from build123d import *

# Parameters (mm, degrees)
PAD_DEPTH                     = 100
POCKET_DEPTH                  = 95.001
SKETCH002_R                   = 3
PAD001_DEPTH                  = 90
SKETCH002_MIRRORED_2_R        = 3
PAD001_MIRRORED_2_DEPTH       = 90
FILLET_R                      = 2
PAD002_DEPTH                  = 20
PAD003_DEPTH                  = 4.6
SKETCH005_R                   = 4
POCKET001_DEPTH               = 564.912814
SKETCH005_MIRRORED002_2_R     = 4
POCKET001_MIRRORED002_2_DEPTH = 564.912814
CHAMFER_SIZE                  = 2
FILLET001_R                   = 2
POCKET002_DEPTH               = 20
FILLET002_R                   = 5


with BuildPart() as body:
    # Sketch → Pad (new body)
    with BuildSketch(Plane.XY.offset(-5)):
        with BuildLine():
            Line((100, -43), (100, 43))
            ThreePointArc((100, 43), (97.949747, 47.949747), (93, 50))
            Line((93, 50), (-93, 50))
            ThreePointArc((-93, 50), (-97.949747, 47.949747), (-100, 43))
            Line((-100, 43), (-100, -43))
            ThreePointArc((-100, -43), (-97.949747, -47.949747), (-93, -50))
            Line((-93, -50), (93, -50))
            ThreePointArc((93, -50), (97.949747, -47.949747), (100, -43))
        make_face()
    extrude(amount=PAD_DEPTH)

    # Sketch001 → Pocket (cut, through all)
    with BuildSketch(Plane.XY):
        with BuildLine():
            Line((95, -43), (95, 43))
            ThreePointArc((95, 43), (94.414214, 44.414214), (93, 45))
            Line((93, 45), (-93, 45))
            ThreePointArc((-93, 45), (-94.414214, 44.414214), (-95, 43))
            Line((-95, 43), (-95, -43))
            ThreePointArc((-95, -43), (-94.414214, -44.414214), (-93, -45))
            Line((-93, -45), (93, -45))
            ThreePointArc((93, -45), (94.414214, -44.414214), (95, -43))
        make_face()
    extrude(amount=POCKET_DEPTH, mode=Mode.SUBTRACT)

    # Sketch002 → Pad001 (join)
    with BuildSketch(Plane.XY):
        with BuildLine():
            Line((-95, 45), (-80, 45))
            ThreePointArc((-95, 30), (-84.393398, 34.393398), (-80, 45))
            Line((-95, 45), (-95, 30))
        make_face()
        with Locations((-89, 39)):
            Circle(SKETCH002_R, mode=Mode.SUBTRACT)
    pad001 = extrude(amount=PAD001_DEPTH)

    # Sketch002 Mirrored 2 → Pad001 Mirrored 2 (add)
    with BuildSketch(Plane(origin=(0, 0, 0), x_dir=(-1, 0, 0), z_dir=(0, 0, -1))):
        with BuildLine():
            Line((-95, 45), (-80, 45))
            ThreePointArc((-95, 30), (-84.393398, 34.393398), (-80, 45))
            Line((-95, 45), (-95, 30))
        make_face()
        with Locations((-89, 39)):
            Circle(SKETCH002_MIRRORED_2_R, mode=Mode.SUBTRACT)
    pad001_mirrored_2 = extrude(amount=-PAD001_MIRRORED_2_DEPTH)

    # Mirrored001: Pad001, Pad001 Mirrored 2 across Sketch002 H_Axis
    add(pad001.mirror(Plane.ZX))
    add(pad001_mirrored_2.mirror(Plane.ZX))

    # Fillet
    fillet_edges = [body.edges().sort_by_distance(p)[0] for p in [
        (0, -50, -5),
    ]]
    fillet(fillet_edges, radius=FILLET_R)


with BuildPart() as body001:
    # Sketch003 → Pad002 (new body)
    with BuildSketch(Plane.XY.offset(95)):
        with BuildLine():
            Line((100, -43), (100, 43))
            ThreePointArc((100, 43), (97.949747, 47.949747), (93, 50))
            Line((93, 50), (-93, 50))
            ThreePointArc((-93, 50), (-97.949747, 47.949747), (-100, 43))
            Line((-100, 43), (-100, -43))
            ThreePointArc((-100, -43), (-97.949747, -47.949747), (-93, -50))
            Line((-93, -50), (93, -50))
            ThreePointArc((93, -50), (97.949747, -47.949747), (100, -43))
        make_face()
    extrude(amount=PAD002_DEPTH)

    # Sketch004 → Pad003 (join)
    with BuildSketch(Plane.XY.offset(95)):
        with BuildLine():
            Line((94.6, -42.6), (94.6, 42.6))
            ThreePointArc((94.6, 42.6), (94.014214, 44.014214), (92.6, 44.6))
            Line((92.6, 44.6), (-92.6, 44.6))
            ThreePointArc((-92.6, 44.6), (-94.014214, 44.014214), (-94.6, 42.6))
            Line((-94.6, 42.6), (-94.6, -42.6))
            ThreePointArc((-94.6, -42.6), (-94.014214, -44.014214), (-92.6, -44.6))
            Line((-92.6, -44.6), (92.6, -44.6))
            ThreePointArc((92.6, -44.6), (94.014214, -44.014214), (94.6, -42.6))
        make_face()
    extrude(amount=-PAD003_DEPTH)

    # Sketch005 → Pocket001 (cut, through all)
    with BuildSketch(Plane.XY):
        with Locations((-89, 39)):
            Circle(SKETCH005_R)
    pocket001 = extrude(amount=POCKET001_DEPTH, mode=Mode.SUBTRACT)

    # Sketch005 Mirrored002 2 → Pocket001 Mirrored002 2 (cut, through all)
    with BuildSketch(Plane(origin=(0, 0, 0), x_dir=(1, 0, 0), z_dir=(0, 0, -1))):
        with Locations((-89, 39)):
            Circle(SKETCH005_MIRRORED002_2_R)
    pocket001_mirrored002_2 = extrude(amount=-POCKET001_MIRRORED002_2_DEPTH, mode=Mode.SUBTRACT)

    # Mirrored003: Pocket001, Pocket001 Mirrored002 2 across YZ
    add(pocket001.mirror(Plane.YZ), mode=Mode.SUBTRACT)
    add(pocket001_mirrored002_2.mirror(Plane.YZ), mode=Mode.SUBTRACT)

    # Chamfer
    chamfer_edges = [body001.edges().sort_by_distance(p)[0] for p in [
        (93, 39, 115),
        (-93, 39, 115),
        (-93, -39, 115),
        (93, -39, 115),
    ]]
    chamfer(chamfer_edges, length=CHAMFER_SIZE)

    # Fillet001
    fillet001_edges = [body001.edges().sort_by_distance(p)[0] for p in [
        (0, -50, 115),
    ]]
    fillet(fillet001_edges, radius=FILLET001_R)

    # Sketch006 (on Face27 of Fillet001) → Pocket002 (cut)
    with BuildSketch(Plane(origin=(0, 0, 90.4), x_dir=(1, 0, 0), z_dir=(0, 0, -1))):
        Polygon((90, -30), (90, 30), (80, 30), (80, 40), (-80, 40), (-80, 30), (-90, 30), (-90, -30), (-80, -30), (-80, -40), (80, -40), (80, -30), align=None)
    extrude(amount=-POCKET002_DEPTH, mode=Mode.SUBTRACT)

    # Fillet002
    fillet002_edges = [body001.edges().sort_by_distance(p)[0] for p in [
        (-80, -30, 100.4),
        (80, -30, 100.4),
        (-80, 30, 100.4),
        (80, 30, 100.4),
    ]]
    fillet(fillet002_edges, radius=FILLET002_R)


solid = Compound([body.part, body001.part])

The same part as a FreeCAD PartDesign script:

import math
import FreeCAD as App
import Part
import Sketcher
Q = App.Units.Quantity


def edges_at(feature, points):
    """Names of the edges that pass closest to the given points."""
    edges = feature.Shape.Edges
    near = lambda p: min(range(len(edges)), key=lambda i: edges[i].distToShape(Part.Vertex(*p))[0])
    return sorted({f"Edge{near(p) + 1}" for p in points})

doc = App.newDocument("Part")
body = doc.addObject("PartDesign::Body", "Body")

# Sketch on XY plane
sketch1 = body.newObject("Sketcher::SketchObject", "Sketch")
sketch1.AttachmentSupport = (doc.getObject("XY_Plane"), [""])
sketch1.MapMode = "FlatFace"
sketch1.AttachmentOffset = App.Placement(App.Vector(0, 0, -5), App.Rotation())
sketch1.addGeometry(Part.LineSegment(App.Vector(100, -43, 0), App.Vector(100, 43, 0)), False)
sketch1.addGeometry(Part.ArcOfCircle(Part.Circle(App.Vector(93, 43, 0), App.Vector(0, 0, 1), 7), math.radians(0), math.radians(90)), False)
sketch1.addGeometry(Part.LineSegment(App.Vector(93, 50, 0), App.Vector(-93, 50, 0)), False)
sketch1.addGeometry(Part.ArcOfCircle(Part.Circle(App.Vector(-93, 43, 0), App.Vector(0, 0, 1), 7), math.radians(90), math.radians(180)), False)
sketch1.addGeometry(Part.LineSegment(App.Vector(-100, 43, 0), App.Vector(-100, -43, 0)), False)
sketch1.addGeometry(Part.ArcOfCircle(Part.Circle(App.Vector(-93, -43, 0), App.Vector(0, 0, 1), 7), math.radians(-180), math.radians(-90)), False)
sketch1.addGeometry(Part.LineSegment(App.Vector(-93, -50, 0), App.Vector(93, -50, 0)), False)
sketch1.addGeometry(Part.ArcOfCircle(Part.Circle(App.Vector(93, -43, 0), App.Vector(0, 0, 1), 7), math.radians(-90), math.radians(0)), False)
sketch1.addConstraint(Sketcher.Constraint("Tangent", 0, 2, 1, 1))
sketch1.addConstraint(Sketcher.Constraint("Tangent", 1, 2, 2, 1))
sketch1.addConstraint(Sketcher.Constraint("Tangent", 2, 2, 3, 1))
sketch1.addConstraint(Sketcher.Constraint("Tangent", 3, 2, 4, 1))
sketch1.addConstraint(Sketcher.Constraint("Tangent", 4, 2, 5, 1))
sketch1.addConstraint(Sketcher.Constraint("Tangent", 5, 2, 6, 1))
sketch1.addConstraint(Sketcher.Constraint("Tangent", 6, 2, 7, 1))
sketch1.addConstraint(Sketcher.Constraint("Tangent", 7, 2, 0, 1))
sketch1.addConstraint(Sketcher.Constraint("Vertical", 0))
sketch1.addConstraint(Sketcher.Constraint("Horizontal", 2))
sketch1.addConstraint(Sketcher.Constraint("Vertical", 4))
sketch1.addConstraint(Sketcher.Constraint("Horizontal", 6))
sketch1.addConstraint(Sketcher.Constraint("Equal", 1, 3))
sketch1.addConstraint(Sketcher.Constraint("Equal", 3, 5))
sketch1.addConstraint(Sketcher.Constraint("Equal", 5, 7))
sketch1.addConstraint(Sketcher.Constraint("Symmetric", 1, 3, 5, 3, -1, 1))
sketch1.addConstraint(Sketcher.Constraint("Radius", 1, Q("7.000002 mm")))
sketch1.addConstraint(Sketcher.Constraint("DistanceX", 2, 2, 2, 1, Q("186 mm")))
sketch1.addConstraint(Sketcher.Constraint("DistanceY", 0, 1, 0, 2, Q("86 mm")))
pad1 = body.newObject("PartDesign::Pad", "Pad")
pad1.Profile = sketch1
pad1.Length = 100

# Sketch on XY plane
sketch2 = body.newObject("Sketcher::SketchObject", "Sketch001")
sketch2.AttachmentSupport = (doc.getObject("XY_Plane"), [""])
sketch2.MapMode = "FlatFace"
sketch2.addGeometry(Part.LineSegment(App.Vector(95, -43, 0), App.Vector(95, 43, 0)), False)
sketch2.addGeometry(Part.ArcOfCircle(Part.Circle(App.Vector(93, 43, 0), App.Vector(0, 0, 1), 2), math.radians(0), math.radians(90)), False)
sketch2.addGeometry(Part.LineSegment(App.Vector(93, 45, 0), App.Vector(-93, 45, 0)), False)
sketch2.addGeometry(Part.ArcOfCircle(Part.Circle(App.Vector(-93, 43, 0), App.Vector(0, 0, 1), 2), math.radians(90), math.radians(180)), False)
sketch2.addGeometry(Part.LineSegment(App.Vector(-95, 43, 0), App.Vector(-95, -43, 0)), False)
sketch2.addGeometry(Part.ArcOfCircle(Part.Circle(App.Vector(-93, -43, 0), App.Vector(0, 0, 1), 2), math.radians(180), math.radians(270)), False)
sketch2.addGeometry(Part.LineSegment(App.Vector(-93, -45, 0), App.Vector(93, -45, 0)), False)
sketch2.addGeometry(Part.ArcOfCircle(Part.Circle(App.Vector(93, -43, 0), App.Vector(0, 0, 1), 2), math.radians(-90), math.radians(0)), False)
sketch2.addConstraint(Sketcher.Constraint("Tangent", 0, 2, 1, 1))
sketch2.addConstraint(Sketcher.Constraint("Tangent", 1, 2, 2, 1))
sketch2.addConstraint(Sketcher.Constraint("Tangent", 2, 2, 3, 1))
sketch2.addConstraint(Sketcher.Constraint("Tangent", 3, 2, 4, 1))
sketch2.addConstraint(Sketcher.Constraint("Tangent", 4, 2, 5, 1))
sketch2.addConstraint(Sketcher.Constraint("Tangent", 5, 2, 6, 1))
sketch2.addConstraint(Sketcher.Constraint("Tangent", 6, 2, 7, 1))
sketch2.addConstraint(Sketcher.Constraint("Tangent", 7, 2, 0, 1))
sketch2.addConstraint(Sketcher.Constraint("Vertical", 0))
sketch2.addConstraint(Sketcher.Constraint("Horizontal", 2))
sketch2.addConstraint(Sketcher.Constraint("Vertical", 4))
sketch2.addConstraint(Sketcher.Constraint("Horizontal", 6))
sketch2.addConstraint(Sketcher.Constraint("Equal", 1, 3))
sketch2.addConstraint(Sketcher.Constraint("Equal", 3, 5))
sketch2.addConstraint(Sketcher.Constraint("Equal", 5, 7))
sketch2.addConstraint(Sketcher.Constraint("Symmetric", 1, 3, 5, 3, -1, 1))
sketch2.addConstraint(Sketcher.Constraint("Radius", 1, Q("1.999999 mm")))
sketch2.addConstraint(Sketcher.Constraint("DistanceX", 2, 2, 2, 1, Q("186 mm")))
sketch2.addConstraint(Sketcher.Constraint("DistanceY", 0, 1, 0, 2, Q("86 mm")))
pocket1 = body.newObject("PartDesign::Pocket", "Pocket")
pocket1.Profile = sketch2
pocket1.Type = "ThroughAll"
pocket1.Reversed = True

# Sketch on XY plane
sketch3 = body.newObject("Sketcher::SketchObject", "Sketch002")
sketch3.AttachmentSupport = (doc.getObject("XY_Plane"), [""])
sketch3.MapMode = "FlatFace"
sketch3.addGeometry(Part.LineSegment(App.Vector(-80, 45, 0), App.Vector(-95, 45, 0)), False)
sketch3.addGeometry(Part.LineSegment(App.Vector(-95, 45, 0), App.Vector(-95, 30, 0)), False)
sketch3.addGeometry(Part.ArcOfCircle(Part.Circle(App.Vector(-95, 45, 0), App.Vector(0, 0, 1), 15), math.radians(-90), math.radians(0)), False)
sketch3.addGeometry(Part.Circle(App.Vector(-89, 39, 0), App.Vector(0, 0, 1), 3), False)
sketch3.addConstraint(Sketcher.Constraint("Coincident", 0, 2, 1, 1))
sketch3.addConstraint(Sketcher.Constraint("Coincident", 1, 2, 2, 1))
sketch3.addConstraint(Sketcher.Constraint("Coincident", 2, 2, 0, 1))
sketch3.addConstraint(Sketcher.Constraint("Horizontal", 0))
sketch3.addConstraint(Sketcher.Constraint("Vertical", 1))
sketch3.addConstraint(Sketcher.Constraint("Coincident", 0, 2, 2, 3))
sketch3.addConstraint(Sketcher.Constraint("Diameter", 3, Q("6 mm")))
sketch3.addConstraint(Sketcher.Constraint("Radius", 2, Q("14.999999 mm")))
sketch3.addConstraint(Sketcher.Constraint("DistanceX", 2, 3, -1, 1, Q("94.999999 mm")))
sketch3.addConstraint(Sketcher.Constraint("DistanceY", -1, 1, 2, 3, Q("44.999999 mm")))
sketch3.addConstraint(Sketcher.Constraint("DistanceX", 3, 3, -1, 1, Q("89 mm")))
sketch3.addConstraint(Sketcher.Constraint("DistanceY", -1, 1, 3, 3, Q("39 mm")))
pad2 = body.newObject("PartDesign::Pad", "Pad001")
pad2.Profile = sketch3
pad2.Length = 90

# Sketch on XY plane
sketch4 = body.newObject("Sketcher::SketchObject", "Sketch003")
sketch4.AttachmentSupport = (doc.getObject("XY_Plane"), [""])
sketch4.MapMode = "FlatFace"
sketch4.addGeometry(Part.LineSegment(App.Vector(80, 45, 0), App.Vector(95, 45, 0)), False)
sketch4.addGeometry(Part.LineSegment(App.Vector(95, 45, 0), App.Vector(95, 30, 0)), False)
sketch4.addGeometry(Part.ArcOfCircle(Part.Circle(App.Vector(95, 45, 0), App.Vector(0, 0, 1), 15), math.radians(180), math.radians(270)), False)
sketch4.addGeometry(Part.Circle(App.Vector(89, 39, 0), App.Vector(0, 0, 1), 3), False)
sketch4.addConstraint(Sketcher.Constraint("Coincident", 0, 2, 1, 1))
sketch4.addConstraint(Sketcher.Constraint("Coincident", 1, 2, 2, 2))
sketch4.addConstraint(Sketcher.Constraint("Coincident", 2, 1, 0, 1))
sketch4.addConstraint(Sketcher.Constraint("Horizontal", 0))
sketch4.addConstraint(Sketcher.Constraint("Vertical", 1))
sketch4.addConstraint(Sketcher.Constraint("Coincident", 0, 2, 2, 3))
sketch4.addConstraint(Sketcher.Constraint("Diameter", 3, Q("6 mm")))
sketch4.addConstraint(Sketcher.Constraint("Radius", 2, Q("14.999999 mm")))
sketch4.addConstraint(Sketcher.Constraint("DistanceX", -1, 1, 2, 3, Q("94.999999 mm")))
sketch4.addConstraint(Sketcher.Constraint("DistanceY", -1, 1, 2, 3, Q("44.999999 mm")))
sketch4.addConstraint(Sketcher.Constraint("DistanceX", -1, 1, 3, 3, Q("89 mm")))
sketch4.addConstraint(Sketcher.Constraint("DistanceY", -1, 1, 3, 3, Q("39 mm")))
pad3 = body.newObject("PartDesign::Pad", "Pad002")
pad3.Profile = sketch4
pad3.Length = 90
doc.recompute()

mirrored = body.newObject("PartDesign::Mirrored", "Mirrored")
mirrored.Originals = [pad2, pad3]
mirrored.MirrorPlane = (doc.getObject("XZ_Plane"), [""])
body.Tip = mirrored
doc.recompute()

fillet = body.newObject("PartDesign::Fillet", "Fillet")
fillet.Base = (mirrored, edges_at(mirrored, [(0, -50, -5)]))
fillet.Radius = 2
body2 = doc.addObject("PartDesign::Body", "Body001")

# Sketch on XY plane
sketch5 = body2.newObject("Sketcher::SketchObject", "Sketch004")
sketch5.AttachmentSupport = (doc.getObject("XY_Plane001"), [""])
sketch5.MapMode = "FlatFace"
sketch5.AttachmentOffset = App.Placement(App.Vector(0, 0, 95), App.Rotation())
sketch5.addGeometry(Part.LineSegment(App.Vector(100, -43, 0), App.Vector(100, 43, 0)), False)
sketch5.addGeometry(Part.ArcOfCircle(Part.Circle(App.Vector(93, 43, 0), App.Vector(0, 0, 1), 7), math.radians(0), math.radians(90)), False)
sketch5.addGeometry(Part.LineSegment(App.Vector(93, 50, 0), App.Vector(-93, 50, 0)), False)
sketch5.addGeometry(Part.ArcOfCircle(Part.Circle(App.Vector(-93, 43, 0), App.Vector(0, 0, 1), 7), math.radians(90), math.radians(180)), False)
sketch5.addGeometry(Part.LineSegment(App.Vector(-100, 43, 0), App.Vector(-100, -43, 0)), False)
sketch5.addGeometry(Part.ArcOfCircle(Part.Circle(App.Vector(-93, -43, 0), App.Vector(0, 0, 1), 7), math.radians(-180), math.radians(-90)), False)
sketch5.addGeometry(Part.LineSegment(App.Vector(-93, -50, 0), App.Vector(93, -50, 0)), False)
sketch5.addGeometry(Part.ArcOfCircle(Part.Circle(App.Vector(93, -43, 0), App.Vector(0, 0, 1), 7), math.radians(-90), math.radians(0)), False)
sketch5.addConstraint(Sketcher.Constraint("Tangent", 0, 2, 1, 1))
sketch5.addConstraint(Sketcher.Constraint("Tangent", 1, 2, 2, 1))
sketch5.addConstraint(Sketcher.Constraint("Tangent", 2, 2, 3, 1))
sketch5.addConstraint(Sketcher.Constraint("Tangent", 3, 2, 4, 1))
sketch5.addConstraint(Sketcher.Constraint("Tangent", 4, 2, 5, 1))
sketch5.addConstraint(Sketcher.Constraint("Tangent", 5, 2, 6, 1))
sketch5.addConstraint(Sketcher.Constraint("Tangent", 6, 2, 7, 1))
sketch5.addConstraint(Sketcher.Constraint("Tangent", 7, 2, 0, 1))
sketch5.addConstraint(Sketcher.Constraint("Vertical", 0))
sketch5.addConstraint(Sketcher.Constraint("Horizontal", 2))
sketch5.addConstraint(Sketcher.Constraint("Vertical", 4))
sketch5.addConstraint(Sketcher.Constraint("Horizontal", 6))
sketch5.addConstraint(Sketcher.Constraint("Equal", 1, 3))
sketch5.addConstraint(Sketcher.Constraint("Equal", 3, 5))
sketch5.addConstraint(Sketcher.Constraint("Equal", 5, 7))
sketch5.addConstraint(Sketcher.Constraint("Symmetric", 1, 3, 5, 3, -1, 1))
sketch5.addConstraint(Sketcher.Constraint("Radius", 1, Q("7.000002 mm")))
sketch5.addConstraint(Sketcher.Constraint("DistanceX", 2, 2, 2, 1, Q("186 mm")))
sketch5.addConstraint(Sketcher.Constraint("DistanceY", 0, 1, 0, 2, Q("86 mm")))
pad4 = body2.newObject("PartDesign::Pad", "Pad003")
pad4.Profile = sketch5
pad4.Length = 20

# Sketch on XY plane
sketch6 = body2.newObject("Sketcher::SketchObject", "Sketch005")
sketch6.AttachmentSupport = (doc.getObject("XY_Plane001"), [""])
sketch6.MapMode = "FlatFace"
sketch6.AttachmentOffset = App.Placement(App.Vector(0, 0, 95), App.Rotation())
sketch6.addGeometry(Part.LineSegment(App.Vector(94.6, -42.6, 0), App.Vector(94.6, 42.6, 0)), False)
sketch6.addGeometry(Part.ArcOfCircle(Part.Circle(App.Vector(92.6, 42.6, 0), App.Vector(0, 0, 1), 2), math.radians(0), math.radians(90)), False)
sketch6.addGeometry(Part.LineSegment(App.Vector(92.6, 44.6, 0), App.Vector(-92.6, 44.6, 0)), False)
sketch6.addGeometry(Part.ArcOfCircle(Part.Circle(App.Vector(-92.6, 42.6, 0), App.Vector(0, 0, 1), 2), math.radians(90), math.radians(180)), False)
sketch6.addGeometry(Part.LineSegment(App.Vector(-94.6, 42.6, 0), App.Vector(-94.6, -42.6, 0)), False)
sketch6.addGeometry(Part.ArcOfCircle(Part.Circle(App.Vector(-92.6, -42.6, 0), App.Vector(0, 0, 1), 2), math.radians(180), math.radians(270)), False)
sketch6.addGeometry(Part.LineSegment(App.Vector(-92.6, -44.6, 0), App.Vector(92.6, -44.6, 0)), False)
sketch6.addGeometry(Part.ArcOfCircle(Part.Circle(App.Vector(92.6, -42.6, 0), App.Vector(0, 0, 1), 2), math.radians(-90), math.radians(0)), False)
sketch6.addConstraint(Sketcher.Constraint("Tangent", 0, 2, 1, 1))
sketch6.addConstraint(Sketcher.Constraint("Tangent", 1, 2, 2, 1))
sketch6.addConstraint(Sketcher.Constraint("Tangent", 2, 2, 3, 1))
sketch6.addConstraint(Sketcher.Constraint("Tangent", 3, 2, 4, 1))
sketch6.addConstraint(Sketcher.Constraint("Tangent", 4, 2, 5, 1))
sketch6.addConstraint(Sketcher.Constraint("Tangent", 5, 2, 6, 1))
sketch6.addConstraint(Sketcher.Constraint("Tangent", 6, 2, 7, 1))
sketch6.addConstraint(Sketcher.Constraint("Tangent", 7, 2, 0, 1))
sketch6.addConstraint(Sketcher.Constraint("Vertical", 0))
sketch6.addConstraint(Sketcher.Constraint("Horizontal", 2))
sketch6.addConstraint(Sketcher.Constraint("Vertical", 4))
sketch6.addConstraint(Sketcher.Constraint("Horizontal", 6))
sketch6.addConstraint(Sketcher.Constraint("Equal", 1, 3))
sketch6.addConstraint(Sketcher.Constraint("Equal", 3, 5))
sketch6.addConstraint(Sketcher.Constraint("Equal", 5, 7))
sketch6.addConstraint(Sketcher.Constraint("Symmetric", 1, 3, 5, 3, -1, 1))
sketch6.addConstraint(Sketcher.Constraint("Radius", 1, Q("1.999999 mm")))
sketch6.addConstraint(Sketcher.Constraint("DistanceX", 2, 2, 2, 1, Q("185.2 mm")))
sketch6.addConstraint(Sketcher.Constraint("DistanceY", 0, 1, 0, 2, Q("85.2 mm")))
pad5 = body2.newObject("PartDesign::Pad", "Pad004")
pad5.Profile = sketch6
pad5.Length = 4.6
pad5.Reversed = True

# Sketch on XY plane
sketch7 = body2.newObject("Sketcher::SketchObject", "Sketch006")
sketch7.AttachmentSupport = (doc.getObject("XY_Plane001"), [""])
sketch7.MapMode = "FlatFace"
sketch7.addGeometry(Part.Circle(App.Vector(-89, 39, 0), App.Vector(0, 0, 1), 4), False)
sketch7.addConstraint(Sketcher.Constraint("Diameter", 0, Q("8 mm")))
sketch7.addConstraint(Sketcher.Constraint("DistanceX", 0, 3, -1, 1, Q("89 mm")))
sketch7.addConstraint(Sketcher.Constraint("DistanceY", -1, 1, 0, 3, Q("39 mm")))
pocket2 = body2.newObject("PartDesign::Pocket", "Pocket001")
pocket2.Profile = sketch7
pocket2.Type = "ThroughAll"
pocket2.Reversed = True

# Sketch on XY plane
sketch8 = body2.newObject("Sketcher::SketchObject", "Sketch007")
sketch8.AttachmentSupport = (doc.getObject("XY_Plane001"), [""])
sketch8.MapMode = "FlatFace"
sketch8.addGeometry(Part.Circle(App.Vector(-89, -39, 0), App.Vector(0, 0, 1), 4), False)
sketch8.addConstraint(Sketcher.Constraint("Diameter", 0, Q("8 mm")))
sketch8.addConstraint(Sketcher.Constraint("DistanceX", 0, 3, -1, 1, Q("89 mm")))
sketch8.addConstraint(Sketcher.Constraint("DistanceY", 0, 3, -1, 1, Q("39 mm")))
pocket3 = body2.newObject("PartDesign::Pocket", "Pocket002")
pocket3.Profile = sketch8
pocket3.Type = "ThroughAll"
pocket3.Reversed = True
doc.recompute()

mirrored2 = body2.newObject("PartDesign::Mirrored", "Mirrored001")
mirrored2.Originals = [pocket2, pocket3]
mirrored2.MirrorPlane = (doc.getObject("YZ_Plane001"), [""])
body2.Tip = mirrored2
doc.recompute()

chamfer = body2.newObject("PartDesign::Chamfer", "Chamfer")
chamfer.Base = (mirrored2, edges_at(mirrored2, [
    (93, 39, 115),
    (-93, 39, 115),
    (-93, -39, 115),
    (93, -39, 115),
]))
chamfer.Size = 2
doc.recompute()

fillet2 = body2.newObject("PartDesign::Fillet", "Fillet001")
fillet2.Base = (chamfer, edges_at(chamfer, [(0, -50, 115)]))
fillet2.Radius = 2

# Sketch on XY plane
sketch9 = body2.newObject("Sketcher::SketchObject", "Sketch008")
sketch9.AttachmentSupport = (doc.getObject("XY_Plane001"), [""])
sketch9.MapMode = "FlatFace"
sketch9.AttachmentOffset = App.Placement(App.Vector(0, 0, 90.4), App.Rotation())
sketch9.addGeometry(Part.LineSegment(App.Vector(90, 30, 0), App.Vector(90, -30, 0)), False)
sketch9.addGeometry(Part.LineSegment(App.Vector(90, -30, 0), App.Vector(80, -30, 0)), False)
sketch9.addGeometry(Part.LineSegment(App.Vector(80, -30, 0), App.Vector(80, -40, 0)), False)
sketch9.addGeometry(Part.LineSegment(App.Vector(80, -40, 0), App.Vector(-80, -40, 0)), False)
sketch9.addGeometry(Part.LineSegment(App.Vector(-80, -40, 0), App.Vector(-80, -30, 0)), False)
sketch9.addGeometry(Part.LineSegment(App.Vector(-80, -30, 0), App.Vector(-90, -30, 0)), False)
sketch9.addGeometry(Part.LineSegment(App.Vector(-90, -30, 0), App.Vector(-90, 30, 0)), False)
sketch9.addGeometry(Part.LineSegment(App.Vector(-90, 30, 0), App.Vector(-80, 30, 0)), False)
sketch9.addGeometry(Part.LineSegment(App.Vector(-80, 30, 0), App.Vector(-80, 40, 0)), False)
sketch9.addGeometry(Part.LineSegment(App.Vector(-80, 40, 0), App.Vector(80, 40, 0)), False)
sketch9.addGeometry(Part.LineSegment(App.Vector(80, 40, 0), App.Vector(80, 30, 0)), False)
sketch9.addGeometry(Part.LineSegment(App.Vector(80, 30, 0), App.Vector(90, 30, 0)), False)
sketch9.addConstraint(Sketcher.Constraint("Coincident", 0, 2, 1, 1))
sketch9.addConstraint(Sketcher.Constraint("Coincident", 1, 2, 2, 1))
sketch9.addConstraint(Sketcher.Constraint("Coincident", 2, 2, 3, 1))
sketch9.addConstraint(Sketcher.Constraint("Coincident", 3, 2, 4, 1))
sketch9.addConstraint(Sketcher.Constraint("Coincident", 4, 2, 5, 1))
sketch9.addConstraint(Sketcher.Constraint("Coincident", 5, 2, 6, 1))
sketch9.addConstraint(Sketcher.Constraint("Coincident", 6, 2, 7, 1))
sketch9.addConstraint(Sketcher.Constraint("Coincident", 7, 2, 8, 1))
sketch9.addConstraint(Sketcher.Constraint("Coincident", 8, 2, 9, 1))
sketch9.addConstraint(Sketcher.Constraint("Coincident", 9, 2, 10, 1))
sketch9.addConstraint(Sketcher.Constraint("Coincident", 10, 2, 11, 1))
sketch9.addConstraint(Sketcher.Constraint("Coincident", 11, 2, 0, 1))
sketch9.addConstraint(Sketcher.Constraint("Vertical", 0))
sketch9.addConstraint(Sketcher.Constraint("Horizontal", 1))
sketch9.addConstraint(Sketcher.Constraint("Vertical", 2))
sketch9.addConstraint(Sketcher.Constraint("Horizontal", 3))
sketch9.addConstraint(Sketcher.Constraint("Vertical", 4))
sketch9.addConstraint(Sketcher.Constraint("Horizontal", 5))
sketch9.addConstraint(Sketcher.Constraint("Vertical", 6))
sketch9.addConstraint(Sketcher.Constraint("Horizontal", 7))
sketch9.addConstraint(Sketcher.Constraint("Vertical", 8))
sketch9.addConstraint(Sketcher.Constraint("Horizontal", 9))
sketch9.addConstraint(Sketcher.Constraint("Vertical", 10))
sketch9.addConstraint(Sketcher.Constraint("Horizontal", 11))
sketch9.addConstraint(Sketcher.Constraint("Symmetric", 0, 2, 6, 2, -1, 1))
sketch9.addConstraint(Sketcher.Constraint("Symmetric", 2, 2, 8, 2, -1, 1))
sketch9.addConstraint(Sketcher.Constraint("Symmetric", 4, 2, 10, 2, -1, 1))
sketch9.addConstraint(Sketcher.Constraint("Symmetric", 1, 2, 4, 2, -2))
sketch9.addConstraint(Sketcher.Constraint("Equal", 11, 2))
sketch9.addConstraint(Sketcher.Constraint("DistanceX", 1, 2, 1, 1, Q("10 mm")))
sketch9.addConstraint(Sketcher.Constraint("DistanceX", 3, 2, 3, 1, Q("160 mm")))
sketch9.addConstraint(Sketcher.Constraint("DistanceY", 0, 2, 0, 1, Q("60 mm")))
pocket4 = body2.newObject("PartDesign::Pocket", "Pocket003")
pocket4.Profile = sketch9
pocket4.Length = 20
pocket4.Reversed = True
doc.recompute()

fillet3 = body2.newObject("PartDesign::Fillet", "Fillet002")
fillet3.Base = (pocket4, edges_at(pocket4, [
    (-80, -30, 100.4),
    (80, -30, 100.4),
    (-80, 30, 100.4),
    (80, 30, 100.4),
]))
fillet3.Radius = 5

doc.recompute()
